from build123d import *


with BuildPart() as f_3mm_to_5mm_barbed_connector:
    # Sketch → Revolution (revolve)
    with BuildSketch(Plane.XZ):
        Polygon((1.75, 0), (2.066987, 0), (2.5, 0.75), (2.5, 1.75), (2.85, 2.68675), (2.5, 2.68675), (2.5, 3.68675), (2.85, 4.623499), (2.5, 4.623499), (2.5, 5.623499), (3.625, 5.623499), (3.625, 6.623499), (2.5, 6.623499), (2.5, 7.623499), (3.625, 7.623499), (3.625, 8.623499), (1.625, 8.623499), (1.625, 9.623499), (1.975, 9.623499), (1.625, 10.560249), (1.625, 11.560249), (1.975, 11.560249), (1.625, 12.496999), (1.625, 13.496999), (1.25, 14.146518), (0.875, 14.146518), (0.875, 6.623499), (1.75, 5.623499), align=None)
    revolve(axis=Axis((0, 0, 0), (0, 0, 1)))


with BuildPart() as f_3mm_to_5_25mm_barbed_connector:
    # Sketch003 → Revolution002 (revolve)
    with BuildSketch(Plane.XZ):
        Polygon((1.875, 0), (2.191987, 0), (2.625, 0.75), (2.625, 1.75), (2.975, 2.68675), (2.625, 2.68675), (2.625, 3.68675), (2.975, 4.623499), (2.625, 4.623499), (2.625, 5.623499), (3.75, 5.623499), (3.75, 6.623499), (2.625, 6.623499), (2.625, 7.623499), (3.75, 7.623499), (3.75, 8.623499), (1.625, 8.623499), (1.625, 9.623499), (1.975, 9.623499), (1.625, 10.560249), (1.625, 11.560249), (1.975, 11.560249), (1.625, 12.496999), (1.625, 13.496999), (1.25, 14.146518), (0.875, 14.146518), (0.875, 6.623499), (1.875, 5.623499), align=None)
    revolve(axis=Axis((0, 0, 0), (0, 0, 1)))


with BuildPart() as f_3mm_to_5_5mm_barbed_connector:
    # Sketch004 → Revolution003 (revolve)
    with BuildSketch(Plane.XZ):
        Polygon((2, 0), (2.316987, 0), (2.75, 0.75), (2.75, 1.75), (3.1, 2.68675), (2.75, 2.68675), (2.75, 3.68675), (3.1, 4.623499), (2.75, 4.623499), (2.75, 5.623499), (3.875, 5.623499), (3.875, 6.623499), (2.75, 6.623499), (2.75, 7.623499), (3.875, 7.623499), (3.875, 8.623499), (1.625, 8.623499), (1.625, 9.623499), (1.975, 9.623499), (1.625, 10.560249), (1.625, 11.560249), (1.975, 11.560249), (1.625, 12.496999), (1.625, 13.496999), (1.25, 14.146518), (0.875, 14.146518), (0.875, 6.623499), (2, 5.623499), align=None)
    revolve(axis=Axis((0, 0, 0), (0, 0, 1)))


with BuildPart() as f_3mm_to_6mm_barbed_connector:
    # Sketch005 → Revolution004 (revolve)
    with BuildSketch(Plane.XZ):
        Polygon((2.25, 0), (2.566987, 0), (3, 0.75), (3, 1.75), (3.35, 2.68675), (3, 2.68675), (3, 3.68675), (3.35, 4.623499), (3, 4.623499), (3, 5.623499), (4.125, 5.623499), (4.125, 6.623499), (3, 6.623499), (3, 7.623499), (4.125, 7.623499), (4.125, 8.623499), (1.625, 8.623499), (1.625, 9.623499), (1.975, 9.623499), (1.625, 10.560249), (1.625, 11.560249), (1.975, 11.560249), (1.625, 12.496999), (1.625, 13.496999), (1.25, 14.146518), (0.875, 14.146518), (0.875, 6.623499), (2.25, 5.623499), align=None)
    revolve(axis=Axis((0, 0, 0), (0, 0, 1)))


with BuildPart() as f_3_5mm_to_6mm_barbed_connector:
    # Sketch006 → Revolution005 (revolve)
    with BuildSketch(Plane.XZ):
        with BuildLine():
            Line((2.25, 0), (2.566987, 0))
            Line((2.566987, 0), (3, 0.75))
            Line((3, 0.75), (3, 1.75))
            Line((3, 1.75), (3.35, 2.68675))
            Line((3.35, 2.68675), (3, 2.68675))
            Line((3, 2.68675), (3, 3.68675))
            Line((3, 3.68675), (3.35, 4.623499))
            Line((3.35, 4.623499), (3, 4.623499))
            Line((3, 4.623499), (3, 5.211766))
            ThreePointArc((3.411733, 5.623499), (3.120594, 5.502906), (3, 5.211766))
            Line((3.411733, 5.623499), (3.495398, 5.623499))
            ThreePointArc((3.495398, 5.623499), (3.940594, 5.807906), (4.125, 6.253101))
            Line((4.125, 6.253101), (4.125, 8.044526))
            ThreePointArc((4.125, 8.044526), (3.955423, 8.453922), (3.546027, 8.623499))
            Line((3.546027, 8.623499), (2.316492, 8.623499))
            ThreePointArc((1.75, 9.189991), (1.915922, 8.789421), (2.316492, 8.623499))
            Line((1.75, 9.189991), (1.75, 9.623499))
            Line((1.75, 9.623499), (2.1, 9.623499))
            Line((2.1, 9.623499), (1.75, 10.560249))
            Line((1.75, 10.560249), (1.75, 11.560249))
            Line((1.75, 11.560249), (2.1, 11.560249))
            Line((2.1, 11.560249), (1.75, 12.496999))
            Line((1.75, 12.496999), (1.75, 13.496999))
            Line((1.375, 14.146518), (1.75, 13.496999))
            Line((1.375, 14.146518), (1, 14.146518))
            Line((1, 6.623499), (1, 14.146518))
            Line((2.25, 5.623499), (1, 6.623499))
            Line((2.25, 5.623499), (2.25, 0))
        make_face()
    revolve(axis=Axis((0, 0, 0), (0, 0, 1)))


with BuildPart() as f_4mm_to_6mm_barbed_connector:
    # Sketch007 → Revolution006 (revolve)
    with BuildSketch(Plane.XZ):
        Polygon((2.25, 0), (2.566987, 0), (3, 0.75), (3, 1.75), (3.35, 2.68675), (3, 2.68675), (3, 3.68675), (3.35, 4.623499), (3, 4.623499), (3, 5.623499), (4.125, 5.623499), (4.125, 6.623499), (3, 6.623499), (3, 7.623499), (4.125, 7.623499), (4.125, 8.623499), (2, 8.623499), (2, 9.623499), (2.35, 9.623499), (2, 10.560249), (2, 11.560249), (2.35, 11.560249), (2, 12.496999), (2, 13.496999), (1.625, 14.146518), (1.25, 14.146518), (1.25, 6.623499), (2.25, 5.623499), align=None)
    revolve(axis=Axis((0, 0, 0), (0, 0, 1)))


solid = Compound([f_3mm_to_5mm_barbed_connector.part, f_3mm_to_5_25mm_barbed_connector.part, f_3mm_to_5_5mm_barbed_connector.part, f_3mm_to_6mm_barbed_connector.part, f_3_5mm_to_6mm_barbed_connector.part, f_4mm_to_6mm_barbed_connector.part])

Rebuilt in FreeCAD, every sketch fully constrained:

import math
import FreeCAD as App
import Part
import Sketcher
Q = App.Units.Quantity

doc = App.newDocument("Part")
body = doc.addObject("PartDesign::Body", "Body")

sketch1 = doc.addObject("Sketcher::SketchObject", "Sketch")
body.addObject(sketch1)
sketch1.AttachmentSupport = (doc.XZ_Plane, [""])
sketch1.MapMode = "FlatFace"
sketch1.addGeometry([
    Part.LineSegment(App.Vector(1.75, 0, 0), App.Vector(2.07, 0, 0)),
    Part.LineSegment(App.Vector(2.07, 0, 0), App.Vector(2.5, 0.75, 0)),
    Part.LineSegment(App.Vector(2.5, 0.75, 0), App.Vector(2.5, 1.75, 0)),
    Part.LineSegment(App.Vector(2.5, 1.75, 0), App.Vector(2.85, 2.69, 0)),
    Part.LineSegment(App.Vector(2.85, 2.69, 0), App.Vector(2.5, 2.69, 0)),
    Part.LineSegment(App.Vector(2.5, 2.69, 0), App.Vector(2.5, 3.69, 0)),
    Part.LineSegment(App.Vector(2.5, 3.69, 0), App.Vector(2.85, 4.62, 0)),
    Part.LineSegment(App.Vector(2.85, 4.62, 0), App.Vector(2.5, 4.62, 0)),
    Part.LineSegment(App.Vector(2.5, 4.62, 0), App.Vector(2.5, 5.62, 0)),
    Part.LineSegment(App.Vector(2.5, 5.62, 0), App.Vector(3.62, 5.62, 0)),
    Part.LineSegment(App.Vector(3.62, 5.62, 0), App.Vector(3.62, 6.62, 0)),
    Part.LineSegment(App.Vector(3.62, 6.62, 0), App.Vector(2.5, 6.62, 0)),
    Part.LineSegment(App.Vector(2.5, 6.62, 0), App.Vector(2.5, 7.62, 0)),
    Part.LineSegment(App.Vector(2.5, 7.62, 0), App.Vector(3.62, 7.62, 0)),
    Part.LineSegment(App.Vector(3.62, 7.62, 0), App.Vector(3.62, 8.62, 0)),
    Part.LineSegment(App.Vector(3.62, 8.62, 0), App.Vector(1.62, 8.62, 0)),
    Part.LineSegment(App.Vector(1.62, 8.62, 0), App.Vector(1.62, 9.62, 0)),
    Part.LineSegment(App.Vector(1.62, 9.62, 0), App.Vector(1.98, 9.62, 0)),
    Part.LineSegment(App.Vector(1.98, 9.62, 0), App.Vector(1.62, 10.56, 0)),
    Part.LineSegment(App.Vector(1.62, 10.56, 0), App.Vector(1.62, 11.56, 0)),
    Part.LineSegment(App.Vector(1.62, 11.56, 0), App.Vector(1.98, 11.56, 0)),
    Part.LineSegment(App.Vector(1.98, 11.56, 0), App.Vector(1.62, 12.5, 0)),
    Part.LineSegment(App.Vector(1.62, 12.5, 0), App.Vector(1.62, 13.5, 0)),
    Part.LineSegment(App.Vector(1.62, 13.5, 0), App.Vector(1.25, 14.15, 0)),
    Part.LineSegment(App.Vector(1.25, 14.15, 0), App.Vector(0.88, 14.15, 0)),
    Part.LineSegment(App.Vector(0.88, 14.15, 0), App.Vector(0.88, 6.62, 0)),
    Part.LineSegment(App.Vector(0.88, 6.62, 0), App.Vector(1.75, 5.62, 0)),
    Part.LineSegment(App.Vector(1.75, 5.62, 0), App.Vector(1.75, 0, 0)),
], False)
sketch1.addConstraint([
    Sketcher.Constraint("Coincident", 0, 2, 1, 1),
    Sketcher.Constraint("Coincident", 1, 2, 2, 1),
    Sketcher.Constraint("Coincident", 2, 2, 3, 1),
    Sketcher.Constraint("Coincident", 3, 2, 4, 1),
    Sketcher.Constraint("Coincident", 4, 2, 5, 1),
    Sketcher.Constraint("Coincident", 5, 2, 6, 1),
    Sketcher.Constraint("Coincident", 6, 2, 7, 1),
    Sketcher.Constraint("Coincident", 7, 2, 8, 1),
    Sketcher.Constraint("Coincident", 8, 2, 9, 1),
    Sketcher.Constraint("Coincident", 9, 2, 10, 1),
    Sketcher.Constraint("Coincident", 10, 2, 11, 1),
    Sketcher.Constraint("Coincident", 11, 2, 12, 1),
    Sketcher.Constraint("Coincident", 12, 2, 13, 1),
    Sketcher.Constraint("Coincident", 13, 2, 14, 1),
    Sketcher.Constraint("Coincident", 14, 2, 15, 1),
    Sketcher.Constraint("Coincident", 15, 2, 16, 1),
    Sketcher.Constraint("Coincident", 16, 2, 17, 1),
    Sketcher.Constraint("Coincident", 17, 2, 18, 1),
    Sketcher.Constraint("Coincident", 18, 2, 19, 1),
    Sketcher.Constraint("Coincident", 19, 2, 20, 1),
    Sketcher.Constraint("Coincident", 20, 2, 21, 1),
    Sketcher.Constraint("Coincident", 21, 2, 22, 1),
    Sketcher.Constraint("Coincident", 22, 2, 23, 1),
    Sketcher.Constraint("Coincident", 23, 2, 24, 1),
    Sketcher.Constraint("Coincident", 24, 2, 25, 1),
    Sketcher.Constraint("Coincident", 25, 2, 26, 1),
    Sketcher.Constraint("Coincident", 26, 2, 27, 1),
    Sketcher.Constraint("Coincident", 27, 2, 0, 1),
    Sketcher.Constraint("Horizontal", 0),
    Sketcher.Constraint("Vertical", 2),
    Sketcher.Constraint("Horizontal", 4),
    Sketcher.Constraint("Vertical", 5),
    Sketcher.Constraint("Horizontal", 7),
    Sketcher.Constraint("Vertical", 8),
    Sketcher.Constraint("Horizontal", 9),
    Sketcher.Constraint("Vertical", 10),
    Sketcher.Constraint("Horizontal", 11),
    Sketcher.Constraint("Vertical", 12),
    Sketcher.Constraint("Horizontal", 13),
    Sketcher.Constraint("Vertical", 14),
    Sketcher.Constraint("Horizontal", 15),
    Sketcher.Constraint("Vertical", 16),
    Sketcher.Constraint("Horizontal", 17),
    Sketcher.Constraint("Vertical", 19),
    Sketcher.Constraint("Horizontal", 20),
    Sketcher.Constraint("Vertical", 22),
    Sketcher.Constraint("Horizontal", 24),
    Sketcher.Constraint("Vertical", 25),
    Sketcher.Constraint("Vertical", 27),
    Sketcher.Constraint("PointOnObject", 0, 2, -1),
    Sketcher.Constraint("Parallel", 3, 6),
    Sketcher.Constraint("Parallel", 18, 21),
    Sketcher.Constraint("Horizontal", 11, 2, 25, 2),
    Sketcher.Constraint("Horizontal", 9, 2, 26, 2),
    Sketcher.Constraint("Vertical", 2, 2, 4, 2),
    Sketcher.Constraint("Vertical", 3, 2, 6, 2),
    Sketcher.Constraint("Vertical", 5, 2, 7, 2),
    Sketcher.Constraint("Vertical", 8, 2, 11, 2),
    Sketcher.Constraint("Vertical", 10, 2, 13, 2),
    Sketcher.Constraint("Vertical", 16, 2, 18, 2),
    Sketcher.Constraint("Vertical", 17, 2, 20, 2),
    Sketcher.Constraint("Vertical", 19, 2, 21, 2),
    Sketcher.Constraint("Equal", 7, 17),
    Sketcher.Constraint("Equal", 2, 5),
    Sketcher.Constraint("Equal", 5, 8),
    Sketcher.Constraint("Equal", 8, 10),
    Sketcher.Constraint("Equal", 10, 12),
    Sketcher.Constraint("Equal", 12, 14),
    Sketcher.Constraint("Equal", 14, 16),
    Sketcher.Constraint("Equal", 16, 19),
    Sketcher.Constraint("Equal", 19, 22),
    Sketcher.Constraint("Equal", 6, 18),
    Sketcher.Constraint("DistanceX", 15, 2, 15, 1, Q("2 mm")),
    Sketcher.Constraint("DistanceY", 2, 1, 2, 2, Q("1 mm")),
    Sketcher.Constraint("Angle", 1, Q("59.999983 deg")),
    Sketcher.Constraint("Angle", 23, Q("120.000002 deg")),
    Sketcher.Constraint("Distance", 3, Q("1 mm")),
    Sketcher.Constraint("DistanceX", 4, 2, 4, 1, Q("0.35 mm")),
    Sketcher.Constraint("DistanceX", -1, 1, 1, 2, Q("2.5 mm")),
    Sketcher.Constraint("DistanceX", 24, 2, 20, 2, Q("1.1 mm")),
    Sketcher.Constraint("DistanceX", 26, 2, 6, 2, Q("1.1 mm")),
    Sketcher.Constraint("Distance", 23, Q("0.75 mm")),
    Sketcher.Constraint("DistanceX", 9, 1, 9, 2, Q("1.125 mm")),
    Sketcher.Constraint("DistanceY", -1, 1, 1, 2, Q("0.75 mm")),
])
revolution = doc.addObject("PartDesign::Revolution", "Revolution")
body.addObject(revolution)
revolution.Profile = sketch1
revolution.ReferenceAxis = (sketch1, ["V_Axis"])
revolution.Angle = 360
body2 = doc.addObject("PartDesign::Body", "Body001")

sketch2 = doc.addObject("Sketcher::SketchObject", "Sketch001")
body2.addObject(sketch2)
sketch2.AttachmentSupport = (doc.getObject("XZ_Plane001"), [""])
sketch2.MapMode = "FlatFace"
sketch2.addGeometry([
    Part.LineSegment(App.Vector(1.88, 0, 0), App.Vector(2.19, 0, 0)),
    Part.LineSegment(App.Vector(2.19, 0, 0), App.Vector(2.62, 0.75, 0)),
    Part.LineSegment(App.Vector(2.62, 0.75, 0), App.Vector(2.62, 1.75, 0)),
    Part.LineSegment(App.Vector(2.62, 1.75, 0), App.Vector(2.98, 2.69, 0)),
    Part.LineSegment(App.Vector(2.98, 2.69, 0), App.Vector(2.62, 2.69, 0)),
    Part.LineSegment(App.Vector(2.62, 2.69, 0), App.Vector(2.62, 3.69, 0)),
    Part.LineSegment(App.Vector(2.62, 3.69, 0), App.Vector(2.98, 4.62, 0)),
    Part.LineSegment(App.Vector(2.98, 4.62, 0), App.Vector(2.62, 4.62, 0)),
    Part.LineSegment(App.Vector(2.62, 4.62, 0), App.Vector(2.62, 5.62, 0)),
    Part.LineSegment(App.Vector(2.62, 5.62, 0), App.Vector(3.75, 5.62, 0)),
    Part.LineSegment(App.Vector(3.75, 5.62, 0), App.Vector(3.75, 6.62, 0)),
    Part.LineSegment(App.Vector(3.75, 6.62, 0), App.Vector(2.62, 6.62, 0)),
    Part.LineSegment(App.Vector(2.62, 6.62, 0), App.Vector(2.62, 7.62, 0)),
    Part.LineSegment(App.Vector(2.62, 7.62, 0), App.Vector(3.75, 7.62, 0)),
    Part.LineSegment(App.Vector(3.75, 7.62, 0), App.Vector(3.75, 8.62, 0)),
    Part.LineSegment(App.Vector(3.75, 8.62, 0), App.Vector(1.62, 8.62, 0)),
    Part.LineSegment(App.Vector(1.62, 8.62, 0), App.Vector(1.62, 9.62, 0)),
    Part.LineSegment(App.Vector(1.62, 9.62, 0), App.Vector(1.98, 9.62, 0)),
    Part.LineSegment(App.Vector(1.98, 9.62, 0), App.Vector(1.62, 10.56, 0)),
    Part.LineSegment(App.Vector(1.62, 10.56, 0), App.Vector(1.62, 11.56, 0)),
    Part.LineSegment(App.Vector(1.62, 11.56, 0), App.Vector(1.98, 11.56, 0)),
    Part.LineSegment(App.Vector(1.98, 11.56, 0), App.Vector(1.62, 12.5, 0)),
    Part.LineSegment(App.Vector(1.62, 12.5, 0), App.Vector(1.62, 13.5, 0)),
    Part.LineSegment(App.Vector(1.62, 13.5, 0), App.Vector(1.25, 14.15, 0)),
    Part.LineSegment(App.Vector(1.25, 14.15, 0), App.Vector(0.88, 14.15, 0)),
    Part.LineSegment(App.Vector(0.88, 14.15, 0), App.Vector(0.88, 6.62, 0)),
    Part.LineSegment(App.Vector(0.88, 6.62, 0), App.Vector(1.88, 5.62, 0)),
    Part.LineSegment(App.Vector(1.88, 5.62, 0), App.Vector(1.88, 0, 0)),
], False)
sketch2.addConstraint([
    Sketcher.Constraint("Coincident", 0, 2, 1, 1),
    Sketcher.Constraint("Coincident", 1, 2, 2, 1),
    Sketcher.Constraint("Coincident", 2, 2, 3, 1),
    Sketcher.Constraint("Coincident", 3, 2, 4, 1),
    Sketcher.Constraint("Coincident", 4, 2, 5, 1),
    Sketcher.Constraint("Coincident", 5, 2, 6, 1),
    Sketcher.Constraint("Coincident", 6, 2, 7, 1),
    Sketcher.Constraint("Coincident", 7, 2, 8, 1),
    Sketcher.Constraint("Coincident", 8, 2, 9, 1),
    Sketcher.Constraint("Coincident", 9, 2, 10, 1),
    Sketcher.Constraint("Coincident", 10, 2, 11, 1),
    Sketcher.Constraint("Coincident", 11, 2, 12, 1),
    Sketcher.Constraint("Coincident", 12, 2, 13, 1),
    Sketcher.Constraint("Coincident", 13, 2, 14, 1),
    Sketcher.Constraint("Coincident", 14, 2, 15, 1),
    Sketcher.Constraint("Coincident", 15, 2, 16, 1),
    Sketcher.Constraint("Coincident", 16, 2, 17, 1),
    Sketcher.Constraint("Coincident", 17, 2, 18, 1),
    Sketcher.Constraint("Coincident", 18, 2, 19, 1),
    Sketcher.Constraint("Coincident", 19, 2, 20, 1),
    Sketcher.Constraint("Coincident", 20, 2, 21, 1),
    Sketcher.Constraint("Coincident", 21, 2, 22, 1),
    Sketcher.Constraint("Coincident", 22, 2, 23, 1),
    Sketcher.Constraint("Coincident", 23, 2, 24, 1),
    Sketcher.Constraint("Coincident", 24, 2, 25, 1),
    Sketcher.Constraint("Coincident", 25, 2, 26, 1),
    Sketcher.Constraint("Coincident", 26, 2, 27, 1),
    Sketcher.Constraint("Coincident", 27, 2, 0, 1),
    Sketcher.Constraint("Horizontal", 0),
    Sketcher.Constraint("Vertical", 2),
    Sketcher.Constraint("Horizontal", 4),
    Sketcher.Constraint("Vertical", 5),
    Sketcher.Constraint("Horizontal", 7),
    Sketcher.Constraint("Vertical", 8),
    Sketcher.Constraint("Horizontal", 9),
    Sketcher.Constraint("Vertical", 10),
    Sketcher.Constraint("Horizontal", 11),
    Sketcher.Constraint("Vertical", 12),
    Sketcher.Constraint("Horizontal", 13),
    Sketcher.Constraint("Vertical", 14),
    Sketcher.Constraint("Horizontal", 15),
    Sketcher.Constraint("Vertical", 16),
    Sketcher.Constraint("Horizontal", 17),
    Sketcher.Constraint("Vertical", 19),
    Sketcher.Constraint("Horizontal", 20),
    Sketcher.Constraint("Vertical", 22),
    Sketcher.Constraint("Horizontal", 24),
    Sketcher.Constraint("Vertical", 25),
    Sketcher.Constraint("Vertical", 27),
    Sketcher.Constraint("PointOnObject", 0, 2, -1),
    Sketcher.Constraint("Parallel", 3, 6),
    Sketcher.Constraint("Parallel", 18, 21),
    Sketcher.Constraint("Horizontal", 11, 2, 25, 2),
    Sketcher.Constraint("Horizontal", 9, 2, 26, 2),
    Sketcher.Constraint("Vertical", 2, 2, 4, 2),
    Sketcher.Constraint("Vertical", 3, 2, 6, 2),
    Sketcher.Constraint("Vertical", 5, 2, 7, 2),
    Sketcher.Constraint("Vertical", 8, 2, 11, 2),
    Sketcher.Constraint("Vertical", 10, 2, 13, 2),
    Sketcher.Constraint("Vertical", 16, 2, 18, 2),
    Sketcher.Constraint("Vertical", 17, 2, 20, 2),
    Sketcher.Constraint("Vertical", 19, 2, 21, 2),
    Sketcher.Constraint("Equal", 7, 17),
    Sketcher.Constraint("Equal", 2, 5),
    Sketcher.Constraint("Equal", 5, 8),
    Sketcher.Constraint("Equal", 8, 10),
    Sketcher.Constraint("Equal", 10, 12),
    Sketcher.Constraint("Equal", 12, 14),
    Sketcher.Constraint("Equal", 14, 16),
    Sketcher.Constraint("Equal", 16, 19),
    Sketcher.Constraint("Equal", 19, 22),
    Sketcher.Constraint("Equal", 6, 18),
    Sketcher.Constraint("DistanceY", 2, 1, 2, 2, Q("1 mm")),
    Sketcher.Constraint("Angle", 1, Q("59.999983 deg")),
    Sketcher.Constraint("Angle", 23, Q("120.000002 deg")),
    Sketcher.Constraint("Angle", 26, Q("-45 deg")),
    Sketcher.Constraint("Distance", 3, Q("1 mm")),
    Sketcher.Constraint("DistanceX", 15, 2, 12, 2, Q("1 mm")),
    Sketcher.Constraint("DistanceX", 4, 2, 4, 1, Q("0.35 mm")),
    Sketcher.Constraint("DistanceX", 24, 2, 20, 2, Q("1.1 mm")),
    Sketcher.Constraint("Distance", 23, Q("0.75 mm")),
    Sketcher.Constraint("DistanceX", 9, 1, 9, 2, Q("1.125 mm")),
    Sketcher.Constraint("DistanceY", -1, 1, 1, 2, Q("0.75 mm")),
    Sketcher.Constraint("DistanceX", -1, 1, 9, 2, Q("3.75 mm")),
])
revolution2 = doc.addObject("PartDesign::Revolution", "Revolution001")
body2.addObject(revolution2)
revolution2.Profile = sketch2
revolution2.ReferenceAxis = (sketch2, ["V_Axis"])
revolution2.Angle = 360
body3 = doc.addObject("PartDesign::Body", "Body002")

sketch3 = doc.addObject("Sketcher::SketchObject", "Sketch002")
body3.addObject(sketch3)
sketch3.AttachmentSupport = (doc.getObject("XZ_Plane002"), [""])
sketch3.MapMode = "FlatFace"
sketch3.addGeometry([
    Part.LineSegment(App.Vector(2, 0, 0), App.Vector(2.32, 0, 0)),
    Part.LineSegment(App.Vector(2.32, 0, 0), App.Vector(2.75, 0.75, 0)),
    Part.LineSegment(App.Vector(2.75, 0.75, 0), App.Vector(2.75, 1.75, 0)),
    Part.LineSegment(App.Vector(2.75, 1.75, 0), App.Vector(3.1, 2.69, 0)),
    Part.LineSegment(App.Vector(3.1, 2.69, 0), App.Vector(2.75, 2.69, 0)),
    Part.LineSegment(App.Vector(2.75, 2.69, 0), App.Vector(2.75, 3.69, 0)),
    Part.LineSegment(App.Vector(2.75, 3.69, 0), App.Vector(3.1, 4.62, 0)),
    Part.LineSegment(App.Vector(3.1, 4.62, 0), App.Vector(2.75, 4.62, 0)),
    Part.LineSegment(App.Vector(2.75, 4.62, 0), App.Vector(2.75, 5.62, 0)),
    Part.LineSegment(App.Vector(2.75, 5.62, 0), App.Vector(3.88, 5.62, 0)),
    Part.LineSegment(App.Vector(3.88, 5.62, 0), App.Vector(3.88, 6.62, 0)),
    Part.LineSegment(App.Vector(3.88, 6.62, 0), App.Vector(2.75, 6.62, 0)),
    Part.LineSegment(App.Vector(2.75, 6.62, 0), App.Vector(2.75, 7.62, 0)),
    Part.LineSegment(App.Vector(2.75, 7.62, 0), App.Vector(3.88, 7.62, 0)),
    Part.LineSegment(App.Vector(3.88, 7.62, 0), App.Vector(3.88, 8.62, 0)),
    Part.LineSegment(App.Vector(3.88, 8.62, 0), App.Vector(1.62, 8.62, 0)),
    Part.LineSegment(App.Vector(1.62, 8.62, 0), App.Vector(1.62, 9.62, 0)),
    Part.LineSegment(App.Vector(1.62, 9.62, 0), App.Vector(1.98, 9.62, 0)),
    Part.LineSegment(App.Vector(1.98, 9.62, 0), App.Vector(1.62, 10.56, 0)),
    Part.LineSegment(App.Vector(1.62, 10.56, 0), App.Vector(1.62, 11.56, 0)),
    Part.LineSegment(App.Vector(1.62, 11.56, 0), App.Vector(1.98, 11.56, 0)),
    Part.LineSegment(App.Vector(1.98, 11.56, 0), App.Vector(1.62, 12.5, 0)),
    Part.LineSegment(App.Vector(1.62, 12.5, 0), App.Vector(1.62, 13.5, 0)),
    Part.LineSegment(App.Vector(1.62, 13.5, 0), App.Vector(1.25, 14.15, 0)),
    Part.LineSegment(App.Vector(1.25, 14.15, 0), App.Vector(0.88, 14.15, 0)),
    Part.LineSegment(App.Vector(0.88, 14.15, 0), App.Vector(0.88, 6.62, 0)),
    Part.LineSegment(App.Vector(0.88, 6.62, 0), App.Vector(2, 5.62, 0)),
    Part.LineSegment(App.Vector(2, 5.62, 0), App.Vector(2, 0, 0)),
], False)
sketch3.addConstraint([
    Sketcher.Constraint("Coincident", 0, 2, 1, 1),
    Sketcher.Constraint("Coincident", 1, 2, 2, 1),
    Sketcher.Constraint("Coincident", 2, 2, 3, 1),
    Sketcher.Constraint("Coincident", 3, 2, 4, 1),
    Sketcher.Constraint("Coincident", 4, 2, 5, 1),
    Sketcher.Constraint("Coincident", 5, 2, 6, 1),
    Sketcher.Constraint("Coincident", 6, 2, 7, 1),
    Sketcher.Constraint("Coincident", 7, 2, 8, 1),
    Sketcher.Constraint("Coincident", 8, 2, 9, 1),
    Sketcher.Constraint("Coincident", 9, 2, 10, 1),
    Sketcher.Constraint("Coincident", 10, 2, 11, 1),
    Sketcher.Constraint("Coincident", 11, 2, 12, 1),
    Sketcher.Constraint("Coincident", 12, 2, 13, 1),
    Sketcher.Constraint("Coincident", 13, 2, 14, 1),
    Sketcher.Constraint("Coincident", 14, 2, 15, 1),
    Sketcher.Constraint("Coincident", 15, 2, 16, 1),
    Sketcher.Constraint("Coincident", 16, 2, 17, 1),
    Sketcher.Constraint("Coincident", 17, 2, 18, 1),
    Sketcher.Constraint("Coincident", 18, 2, 19, 1),
    Sketcher.Constraint("Coincident", 19, 2, 20, 1),
    Sketcher.Constraint("Coincident", 20, 2, 21, 1),
    Sketcher.Constraint("Coincident", 21, 2, 22, 1),
    Sketcher.Constraint("Coincident", 22, 2, 23, 1),
    Sketcher.Constraint("Coincident", 23, 2, 24, 1),
    Sketcher.Constraint("Coincident", 24, 2, 25, 1),
    Sketcher.Constraint("Coincident", 25, 2, 26, 1),
    Sketcher.Constraint("Coincident", 26, 2, 27, 1),
    Sketcher.Constraint("Coincident", 27, 2, 0, 1),
    Sketcher.Constraint("Horizontal", 0),
    Sketcher.Constraint("Vertical", 2),
    Sketcher.Constraint("Horizontal", 4),
    Sketcher.Constraint("Vertical", 5),
    Sketcher.Constraint("Horizontal", 7),
    Sketcher.Constraint("Vertical", 8),
    Sketcher.Constraint("Horizontal", 9),
    Sketcher.Constraint("Vertical", 10),
    Sketcher.Constraint("Horizontal", 11),
    Sketcher.Constraint("Vertical", 12),
    Sketcher.Constraint("Horizontal", 13),
    Sketcher.Constraint("Vertical", 14),
    Sketcher.Constraint("Horizontal", 15),
    Sketcher.Constraint("Vertical", 16),
    Sketcher.Constraint("Horizontal", 17),
    Sketcher.Constraint("Vertical", 19),
    Sketcher.Constraint("Horizontal", 20),
    Sketcher.Constraint("Vertical", 22),
    Sketcher.Constraint("Horizontal", 24),
    Sketcher.Constraint("Vertical", 25),
    Sketcher.Constraint("Vertical", 27),
    Sketcher.Constraint("PointOnObject", 0, 2, -1),
    Sketcher.Constraint("Parallel", 3, 6),
    Sketcher.Constraint("Parallel", 18, 21),
    Sketcher.Constraint("Horizontal", 11, 2, 25, 2),
    Sketcher.Constraint("Horizontal", 9, 2, 26, 2),
    Sketcher.Constraint("Vertical", 2, 2, 4, 2),
    Sketcher.Constraint("Vertical", 3, 2, 6, 2),
    Sketcher.Constraint("Vertical", 5, 2, 7, 2),
    Sketcher.Constraint("Vertical", 8, 2, 11, 2),
    Sketcher.Constraint("Vertical", 10, 2, 13, 2),
    Sketcher.Constraint("Vertical", 16, 2, 18, 2),
    Sketcher.Constraint("Vertical", 17, 2, 20, 2),
    Sketcher.Constraint("Vertical", 19, 2, 21, 2),
    Sketcher.Constraint("Equal", 7, 17),
    Sketcher.Constraint("Equal", 2, 5),
    Sketcher.Constraint("Equal", 5, 8),
    Sketcher.Constraint("Equal", 8, 10),
    Sketcher.Constraint("Equal", 10, 12),
    Sketcher.Constraint("Equal", 12, 14),
    Sketcher.Constraint("Equal", 14, 16),
    Sketcher.Constraint("Equal", 16, 19),
    Sketcher.Constraint("Equal", 19, 22),
    Sketcher.Constraint("Equal", 6, 18),
    Sketcher.Constraint("DistanceY", 2, 1, 2, 2, Q("1 mm")),
    Sketcher.Constraint("Angle", 1, Q("59.999983 deg")),
    Sketcher.Constraint("Angle", 23, Q("120.000002 deg")),
    Sketcher.Constraint("Distance", 3, Q("1 mm")),
    Sketcher.Constraint("DistanceX", -1, 1, 26, 2, Q("2 mm")),
    Sketcher.Constraint("DistanceX", 4, 2, 4, 1, Q("0.35 mm")),
    Sketcher.Constraint("DistanceX", 15, 2, 15, 1, Q("2.25 mm")),
    Sketcher.Constraint("DistanceX", -1, 1, 3, 2, Q("3.1 mm")),
    Sketcher.Constraint("DistanceX", 24, 2, 20, 2, Q("1.1 mm")),
    Sketcher.Constraint("Distance", 23, Q("0.75 mm")),
    Sketcher.Constraint("DistanceX", 9, 1, 9, 2, Q("1.125 mm")),
    Sketcher.Constraint("DistanceY", -1, 1, 1, 2, Q("0.75 mm")),
])
revolution3 = doc.addObject("PartDesign::Revolution", "Revolution002")
body3.addObject(revolution3)
revolution3.Profile = sketch3
revolution3.ReferenceAxis = (sketch3, ["V_Axis"])
revolution3.Angle = 360
body4 = doc.addObject("PartDesign::Body", "Body003")

sketch4 = doc.addObject("Sketcher::SketchObject", "Sketch003")
body4.addObject(sketch4)
sketch4.AttachmentSupport = (doc.getObject("XZ_Plane003"), [""])
sketch4.MapMode = "FlatFace"
sketch4.addGeometry([
    Part.LineSegment(App.Vector(2.25, 0, 0), App.Vector(2.57, 0, 0)),
    Part.LineSegment(App.Vector(2.57, 0, 0), App.Vector(3, 0.75, 0)),
    Part.LineSegment(App.Vector(3, 0.75, 0), App.Vector(3, 1.75, 0)),
    Part.LineSegment(App.Vector(3, 1.75, 0), App.Vector(3.35, 2.69, 0)),
    Part.LineSegment(App.Vector(3.35, 2.69, 0), App.Vector(3, 2.69, 0)),
    Part.LineSegment(App.Vector(3, 2.69, 0), App.Vector(3, 3.69, 0)),
    Part.LineSegment(App.Vector(3, 3.69, 0), App.Vector(3.35, 4.62, 0)),
    Part.LineSegment(App.Vector(3.35, 4.62, 0), App.Vector(3, 4.62, 0)),
    Part.LineSegment(App.Vector(3, 4.62, 0), App.Vector(3, 5.62, 0)),
    Part.LineSegment(App.Vector(3, 5.62, 0), App.Vector(4.12, 5.62, 0)),
    Part.LineSegment(App.Vector(4.12, 5.62, 0), App.Vector(4.12, 6.62, 0)),
    Part.LineSegment(App.Vector(4.12, 6.62, 0), App.Vector(3, 6.62, 0)),
    Part.LineSegment(App.Vector(3, 6.62, 0), App.Vector(3, 7.62, 0)),
    Part.LineSegment(App.Vector(3, 7.62, 0), App.Vector(4.12, 7.62, 0)),
    Part.LineSegment(App.Vector(4.12, 7.62, 0), App.Vector(4.12, 8.62, 0)),
    Part.LineSegment(App.Vector(4.12, 8.62, 0), App.Vector(1.62, 8.62, 0)),
    Part.LineSegment(App.Vector(1.62, 8.62, 0), App.Vector(1.62, 9.62, 0)),
    Part.LineSegment(App.Vector(1.62, 9.62, 0), App.Vector(1.98, 9.62, 0)),
    Part.LineSegment(App.Vector(1.98, 9.62, 0), App.Vector(1.62, 10.56, 0)),
    Part.LineSegment(App.Vector(1.62, 10.56, 0), App.Vector(1.62, 11.56, 0)),
    Part.LineSegment(App.Vector(1.62, 11.56, 0), App.Vector(1.98, 11.56, 0)),
    Part.LineSegment(App.Vector(1.98, 11.56, 0), App.Vector(1.62, 12.5, 0)),
    Part.LineSegment(App.Vector(1.62, 12.5, 0), App.Vector(1.62, 13.5, 0)),
    Part.LineSegment(App.Vector(1.62, 13.5, 0), App.Vector(1.25, 14.15, 0)),
    Part.LineSegment(App.Vector(1.25, 14.15, 0), App.Vector(0.88, 14.15, 0)),
    Part.LineSegment(App.Vector(0.88, 14.15, 0), App.Vector(0.88, 6.62, 0)),
    Part.LineSegment(App.Vector(0.88, 6.62, 0), App.Vector(2.25, 5.62, 0)),
    Part.LineSegment(App.Vector(2.25, 5.62, 0), App.Vector(2.25, 0, 0)),
], False)
sketch4.addConstraint([
    Sketcher.Constraint("Coincident", 0, 2, 1, 1),
    Sketcher.Constraint("Coincident", 1, 2, 2, 1),
    Sketcher.Constraint("Coincident", 2, 2, 3, 1),
    Sketcher.Constraint("Coincident", 3, 2, 4, 1),
    Sketcher.Constraint("Coincident", 4, 2, 5, 1),
    Sketcher.Constraint("Coincident", 5, 2, 6, 1),
    Sketcher.Constraint("Coincident", 6, 2, 7, 1),
    Sketcher.Constraint("Coincident", 7, 2, 8, 1),
    Sketcher.Constraint("Coincident", 8, 2, 9, 1),
    Sketcher.Constraint("Coincident", 9, 2, 10, 1),
    Sketcher.Constraint("Coincident", 10, 2, 11, 1),
    Sketcher.Constraint("Coincident", 11, 2, 12, 1),
    Sketcher.Constraint("Coincident", 12, 2, 13, 1),
    Sketcher.Constraint("Coincident", 13, 2, 14, 1),
    Sketcher.Constraint("Coincident", 14, 2, 15, 1),
    Sketcher.Constraint("Coincident", 15, 2, 16, 1),
    Sketcher.Constraint("Coincident", 16, 2, 17, 1),
    Sketcher.Constraint("Coincident", 17, 2, 18, 1),
    Sketcher.Constraint("Coincident", 18, 2, 19, 1),
    Sketcher.Constraint("Coincident", 19, 2, 20, 1),
    Sketcher.Constraint("Coincident", 20, 2, 21, 1),
    Sketcher.Constraint("Coincident", 21, 2, 22, 1),
    Sketcher.Constraint("Coincident", 22, 2, 23, 1),
    Sketcher.Constraint("Coincident", 23, 2, 24, 1),
    Sketcher.Constraint("Coincident", 24, 2, 25, 1),
    Sketcher.Constraint("Coincident", 25, 2, 26, 1),
    Sketcher.Constraint("Coincident", 26, 2, 27, 1),
    Sketcher.Constraint("Coincident", 27, 2, 0, 1),
    Sketcher.Constraint("Horizontal", 0),
    Sketcher.Constraint("Vertical", 2),
    Sketcher.Constraint("Horizontal", 4),
    Sketcher.Constraint("Vertical", 5),
    Sketcher.Constraint("Horizontal", 7),
    Sketcher.Constraint("Vertical", 8),
    Sketcher.Constraint("Horizontal", 9),
    Sketcher.Constraint("Vertical", 10),
    Sketcher.Constraint("Horizontal", 11),
    Sketcher.Constraint("Vertical", 12),
    Sketcher.Constraint("Horizontal", 13),
    Sketcher.Constraint("Vertical", 14),
    Sketcher.Constraint("Horizontal", 15),
    Sketcher.Constraint("Vertical", 16),
    Sketcher.Constraint("Horizontal", 17),
    Sketcher.Constraint("Vertical", 19),
    Sketcher.Constraint("Horizontal", 20),
    Sketcher.Constraint("Vertical", 22),
    Sketcher.Constraint("Horizontal", 24),
    Sketcher.Constraint("Vertical", 25),
    Sketcher.Constraint("Vertical", 27),
    Sketcher.Constraint("PointOnObject", 0, 2, -1),
    Sketcher.Constraint("Parallel", 3, 6),
    Sketcher.Constraint("Parallel", 18, 21),
    Sketcher.Constraint("Horizontal", 11, 2, 25, 2),
    Sketcher.Constraint("Horizontal", 9, 2, 26, 2),
    Sketcher.Constraint("Vertical", 2, 2, 4, 2),
    Sketcher.Constraint("Vertical", 3, 2, 6, 2),
    Sketcher.Constraint("Vertical", 5, 2, 7, 2),
    Sketcher.Constraint("Vertical", 8, 2, 11, 2),
    Sketcher.Constraint("Vertical", 10, 2, 13, 2),
    Sketcher.Constraint("Vertical", 16, 2, 18, 2),
    Sketcher.Constraint("Vertical", 17, 2, 20, 2),
    Sketcher.Constraint("Vertical", 19, 2, 21, 2),
    Sketcher.Constraint("Equal", 7, 17),
    Sketcher.Constraint("Equal", 2, 5),
    Sketcher.Constraint("Equal", 5, 8),
    Sketcher.Constraint("Equal", 8, 10),
    Sketcher.Constraint("Equal", 10, 12),
    Sketcher.Constraint("Equal", 12, 14),
    Sketcher.Constraint("Equal", 14, 16),
    Sketcher.Constraint("Equal", 16, 19),
    Sketcher.Constraint("Equal", 19, 22),
    Sketcher.Constraint("Equal", 6, 18),
    Sketcher.Constraint("DistanceY", 2, 1, 2, 2, Q("1 mm")),
    Sketcher.Constraint("Angle", 1, Q("59.999983 deg")),
    Sketcher.Constraint("Angle", 23, Q("120.000002 deg")),
    Sketcher.Constraint("Distance", 3, Q("1 mm")),
    Sketcher.Constraint("DistanceX", 15, 2, 15, 1, Q("2.5 mm")),
    Sketcher.Constraint("DistanceX", -1, 1, 1, 2, Q("3 mm")),
    Sketcher.Constraint("DistanceX", 4, 2, 4, 1, Q("0.35 mm")),
    Sketcher.Constraint("DistanceX", 24, 2, 20, 2, Q("1.1 mm")),
    Sketcher.Constraint("DistanceX", 26, 2, 6, 2, Q("1.1 mm")),
    Sketcher.Constraint("Distance", 23, Q("0.75 mm")),
    Sketcher.Constraint("DistanceX", 9, 1, 9, 2, Q("1.125 mm")),
    Sketcher.Constraint("DistanceY", -1, 1, 1, 2, Q("0.75 mm")),
])
revolution4 = doc.addObject("PartDesign::Revolution", "Revolution003")
body4.addObject(revolution4)
revolution4.Profile = sketch4
revolution4.ReferenceAxis = (sketch4, ["V_Axis"])
revolution4.Angle = 360
body5 = doc.addObject("PartDesign::Body", "Body004")

sketch5 = doc.addObject("Sketcher::SketchObject", "Sketch004")
body5.addObject(sketch5)
sketch5.AttachmentSupport = (doc.getObject("XZ_Plane004"), [""])
sketch5.MapMode = "FlatFace"
sketch5.addGeometry([
    Part.LineSegment(App.Vector(2.25, 0, 0), App.Vector(2.57, 0, 0)),
    Part.LineSegment(App.Vector(2.57, 0, 0), App.Vector(3, 0.75, 0)),
    Part.LineSegment(App.Vector(3, 0.75, 0), App.Vector(3, 1.75, 0)),
    Part.LineSegment(App.Vector(3, 1.75, 0), App.Vector(3.35, 2.69, 0)),
    Part.LineSegment(App.Vector(3.35, 2.69, 0), App.Vector(3, 2.69, 0)),
    Part.LineSegment(App.Vector(3, 2.69, 0), App.Vector(3, 3.69, 0)),
    Part.LineSegment(App.Vector(3, 3.69, 0), App.Vector(3.35, 4.62, 0)),
    Part.LineSegment(App.Vector(3.35, 4.62, 0), App.Vector(3, 4.62, 0)),
    Part.LineSegment(App.Vector(3, 4.62, 0), App.Vector(3, 5.21, 0)),
    Part.ArcOfCircle(Part.Circle(App.Vector(3.41, 5.21, 0), App.Vector(0, 0, 1), 0.41), math.radians(90), math.radians(180)),
    Part.LineSegment(App.Vector(3.41, 5.62, 0), App.Vector(3.5, 5.62, 0)),
    Part.ArcOfCircle(Part.Circle(App.Vector(3.5, 6.25, 0), App.Vector(0, 0, 1), 0.63), math.radians(-90), math.radians(0)),
    Part.LineSegment(App.Vector(4.12, 6.25, 0), App.Vector(4.12, 8.04, 0)),
    Part.ArcOfCircle(Part.Circle(App.Vector(3.55, 8.04, 0), App.Vector(0, 0, 1), 0.58), math.radians(0), math.radians(90)),
    Part.LineSegment(App.Vector(3.55, 8.62, 0), App.Vector(2.32, 8.62, 0)),
    Part.ArcOfCircle(Part.Circle(App.Vector(2.32, 9.19, 0), App.Vector(0, 0, 1), 0.57), math.radians(-180), math.radians(-90)),
    Part.LineSegment(App.Vector(1.75, 9.19, 0), App.Vector(1.75, 9.62, 0)),
    Part.LineSegment(App.Vector(1.75, 9.62, 0), App.Vector(2.1, 9.62, 0)),
    Part.LineSegment(App.Vector(2.1, 9.62, 0), App.Vector(1.75, 10.56, 0)),
    Part.LineSegment(App.Vector(1.75, 10.56, 0), App.Vector(1.75, 11.56, 0)),
    Part.LineSegment(App.Vector(1.75, 11.56, 0), App.Vector(2.1, 11.56, 0)),
    Part.LineSegment(App.Vector(2.1, 11.56, 0), App.Vector(1.75, 12.5, 0)),
    Part.LineSegment(App.Vector(1.75, 12.5, 0), App.Vector(1.75, 13.5, 0)),
    Part.LineSegment(App.Vector(1.75, 13.5, 0), App.Vector(1.38, 14.15, 0)),
    Part.LineSegment(App.Vector(1.38, 14.15, 0), App.Vector(1, 14.15, 0)),
    Part.LineSegment(App.Vector(1, 14.15, 0), App.Vector(1, 6.62, 0)),
    Part.LineSegment(App.Vector(1, 6.62, 0), App.Vector(2.25, 5.62, 0)),
    Part.LineSegment(App.Vector(2.25, 5.62, 0), App.Vector(2.25, 0, 0)),
], False)
sketch5.addConstraint([
    Sketcher.Constraint("Coincident", 0, 2, 1, 1),
    Sketcher.Constraint("Coincident", 1, 2, 2, 1),
    Sketcher.Constraint("Coincident", 2, 2, 3, 1),
    Sketcher.Constraint("Coincident", 3, 2, 4, 1),
    Sketcher.Constraint("Coincident", 4, 2, 5, 1),
    Sketcher.Constraint("Coincident", 5, 2, 6, 1),
    Sketcher.Constraint("Coincident", 6, 2, 7, 1),
    Sketcher.Constraint("Coincident", 7, 2, 8, 1),
    Sketcher.Constraint("Coincident", 8, 2, 9, 2),
    Sketcher.Constraint("Coincident", 9, 1, 10, 1),
    Sketcher.Constraint("Tangent", 10, 2, 11, 1),
    Sketcher.Constraint("Tangent", 11, 2, 12, 1),
    Sketcher.Constraint("Tangent", 12, 2, 13, 1),
    Sketcher.Constraint("Tangent", 13, 2, 14, 1),
    Sketcher.Constraint("Coincident", 14, 2, 15, 2),
    Sketcher.Constraint("Coincident", 15, 1, 16, 1),
    Sketcher.Constraint("Coincident", 16, 2, 17, 1),
    Sketcher.Constraint("Coincident", 17, 2, 18, 1),
    Sketcher.Constraint("Coincident", 18, 2, 19, 1),
    Sketcher.Constraint("Coincident", 19, 2, 20, 1),
    Sketcher.Constraint("Coincident", 20, 2, 21, 1),
    Sketcher.Constraint("Coincident", 21, 2, 22, 1),
    Sketcher.Constraint("Coincident", 22, 2, 23, 1),
    Sketcher.Constraint("Coincident", 23, 2, 24, 1),
    Sketcher.Constraint("Coincident", 24, 2, 25, 1),
    Sketcher.Constraint("Coincident", 25, 2, 26, 1),
    Sketcher.Constraint("Coincident", 26, 2, 27, 1),
    Sketcher.Constraint("Coincident", 27, 2, 0, 1),
    Sketcher.Constraint("Horizontal", 0),
    Sketcher.Constraint("Vertical", 2),
    Sketcher.Constraint("Horizontal", 4),
    Sketcher.Constraint("Vertical", 5),
    Sketcher.Constraint("Horizontal", 7),
    Sketcher.Constraint("Vertical", 8),
    Sketcher.Constraint("Horizontal", 10),
    Sketcher.Constraint("Vertical", 12),
    Sketcher.Constraint("Horizontal", 14),
    Sketcher.Constraint("Vertical", 16),
    Sketcher.Constraint("Horizontal", 17),
    Sketcher.Constraint("Vertical", 19),
    Sketcher.Constraint("Horizontal", 20),
    Sketcher.Constraint("Vertical", 22),
    Sketcher.Constraint("Horizontal", 24),
    Sketcher.Constraint("Vertical", 25),
    Sketcher.Constraint("Vertical", 27),
    Sketcher.Constraint("PointOnObject", 0, 2, -1),
    Sketcher.Constraint("Parallel", 3, 6),
    Sketcher.Constraint("Parallel", 18, 21),
    Sketcher.Constraint("Horizontal", 9, 3, 8, 2),
    Sketcher.Constraint("Horizontal", 10, 2, 26, 2),
    Sketcher.Constraint("Vertical", 2, 2, 4, 2),
    Sketcher.Constraint("Vertical", 3, 2, 6, 2),
    Sketcher.Constraint("Vertical", 5, 2, 7, 2),
    Sketcher.Constraint("Vertical", 15, 3, 14, 2),
    Sketcher.Constraint("Vertical", 16, 2, 18, 2),
    Sketcher.Constraint("Vertical", 17, 2, 20, 2),
    Sketcher.Constraint("Vertical", 19, 2, 21, 2),
    Sketcher.Constraint("Equal", 7, 17),
    Sketcher.Constraint("Equal", 2, 5),
    Sketcher.Constraint("Equal", 5, 19),
    Sketcher.Constraint("Equal", 19, 22),
    Sketcher.Constraint("Equal", 6, 18),
    Sketcher.Constraint("DistanceY", 2, 1, 2, 2, Q("1 mm")),
    Sketcher.Constraint("Angle", 1, Q("59.999983 deg")),
    Sketcher.Constraint("Angle", 23, Q("120.000002 deg")),
    Sketcher.Constraint("Distance", 3, Q("1 mm")),
    Sketcher.Constraint("DistanceX", -1, 1, 1, 2, Q("3 mm")),
    Sketcher.Constraint("DistanceX", -1, 1, 24, 2, Q("1 mm")),
    Sketcher.Constraint("DistanceY", 6, 2, 9, 1, Q("1 mm")),
    Sketcher.Constraint("DistanceY", 14, 2, 16, 2, Q("1 mm")),
    Sketcher.Constraint("DistanceY", 25, 2, 14, 2, Q("2 mm")),
    Sketcher.Constraint("DistanceY", 9, 1, 25, 2, Q("1 mm")),
    Sketcher.Constraint("DistanceX", 4, 2, 4, 1, Q("0.35 mm")),
    Sketcher.Constraint("DistanceX", -1, 1, 17, 2, Q("2.1 mm")),
    Sketcher.Constraint("DistanceX", 27, 2, 3, 2, Q("1.1 mm")),
    Sketcher.Constraint("Distance", 23, Q("0.75 mm")),
    Sketcher.Constraint("DistanceY", -1, 1, 1, 2, Q("0.75 mm")),
    Sketcher.Constraint("Radius", 9, Q("0.411732 mm")),
    Sketcher.Constraint("DistanceX", -1, 1, 11, 2, Q("4.125 mm")),
    Sketcher.Constraint("Radius", 11, Q("0.629603 mm")),
    Sketcher.Constraint("Radius", 13, Q("0.578972 mm")),
    Sketcher.Constraint("Radius", 15, Q("0.566493 mm")),
    Sketcher.Constraint("DistanceY", 16, 1, 16, 2, Q("0.433508 mm")),
    Sketcher.Constraint("DistanceX", 10, 1, 10, 2, Q("0.083665 mm")),
])
revolution5 = doc.addObject("PartDesign::Revolution", "Revolution004")
body5.addObject(revolution5)
revolution5.Profile = sketch5
revolution5.ReferenceAxis = (sketch5, ["V_Axis"])
revolution5.Angle = 360
body6 = doc.addObject("PartDesign::Body", "Body005")

sketch6 = doc.addObject("Sketcher::SketchObject", "Sketch005")
body6.addObject(sketch6)
sketch6.AttachmentSupport = (doc.getObject("XZ_Plane005"), [""])
sketch6.MapMode = "FlatFace"
sketch6.addGeometry([
    Part.LineSegment(App.Vector(2.25, 0, 0), App.Vector(2.57, 0, 0)),
    Part.LineSegment(App.Vector(2.57, 0, 0), App.Vector(3, 0.75, 0)),
    Part.LineSegment(App.Vector(3, 0.75, 0), App.Vector(3, 1.75, 0)),
    Part.LineSegment(App.Vector(3, 1.75, 0), App.Vector(3.35, 2.69, 0)),
    Part.LineSegment(App.Vector(3.35, 2.69, 0), App.Vector(3, 2.69, 0)),
    Part.LineSegment(App.Vector(3, 2.69, 0), App.Vector(3, 3.69, 0)),
    Part.LineSegment(App.Vector(3, 3.69, 0), App.Vector(3.35, 4.62, 0)),
    Part.LineSegment(App.Vector(3.35, 4.62, 0), App.Vector(3, 4.62, 0)),
    Part.LineSegment(App.Vector(3, 4.62, 0), App.Vector(3, 5.62, 0)),
    Part.LineSegment(App.Vector(3, 5.62, 0), App.Vector(4.12, 5.62, 0)),
    Part.LineSegment(App.Vector(4.12, 5.62, 0), App.Vector(4.12, 6.62, 0)),
    Part.LineSegment(App.Vector(4.12, 6.62, 0), App.Vector(3, 6.62, 0)),
    Part.LineSegment(App.Vector(3, 6.62, 0), App.Vector(3, 7.62, 0)),
    Part.LineSegment(App.Vector(3, 7.62, 0), App.Vector(4.12, 7.62, 0)),
    Part.LineSegment(App.Vector(4.12, 7.62, 0), App.Vector(4.12, 8.62, 0)),
    Part.LineSegment(App.Vector(4.12, 8.62, 0), App.Vector(2, 8.62, 0)),
    Part.LineSegment(App.Vector(2, 8.62, 0), App.Vector(2, 9.62, 0)),
    Part.LineSegment(App.Vector(2, 9.62, 0), App.Vector(2.35, 9.62, 0)),
    Part.LineSegment(App.Vector(2.35, 9.62, 0), App.Vector(2, 10.56, 0)),
    Part.LineSegment(App.Vector(2, 10.56, 0), App.Vector(2, 11.56, 0)),
    Part.LineSegment(App.Vector(2, 11.56, 0), App.Vector(2.35, 11.56, 0)),
    Part.LineSegment(App.Vector(2.35, 11.56, 0), App.Vector(2, 12.5, 0)),
    Part.LineSegment(App.Vector(2, 12.5, 0), App.Vector(2, 13.5, 0)),
    Part.LineSegment(App.Vector(2, 13.5, 0), App.Vector(1.62, 14.15, 0)),
    Part.LineSegment(App.Vector(1.62, 14.15, 0), App.Vector(1.25, 14.15, 0)),
    Part.LineSegment(App.Vector(1.25, 14.15, 0), App.Vector(1.25, 6.62, 0)),
    Part.LineSegment(App.Vector(1.25, 6.62, 0), App.Vector(2.25, 5.62, 0)),
    Part.LineSegment(App.Vector(2.25, 5.62, 0), App.Vector(2.25, 0, 0)),
], False)
sketch6.addConstraint([
    Sketcher.Constraint("Coincident", 0, 2, 1, 1),
    Sketcher.Constraint("Coincident", 1, 2, 2, 1),
    Sketcher.Constraint("Coincident", 2, 2, 3, 1),
    Sketcher.Constraint("Coincident", 3, 2, 4, 1),
    Sketcher.Constraint("Coincident", 4, 2, 5, 1),
    Sketcher.Constraint("Coincident", 5, 2, 6, 1),
    Sketcher.Constraint("Coincident", 6, 2, 7, 1),
    Sketcher.Constraint("Coincident", 7, 2, 8, 1),
    Sketcher.Constraint("Coincident", 8, 2, 9, 1),
    Sketcher.Constraint("Coincident", 9, 2, 10, 1),
    Sketcher.Constraint("Coincident", 10, 2, 11, 1),
    Sketcher.Constraint("Coincident", 11, 2, 12, 1),
    Sketcher.Constraint("Coincident", 12, 2, 13, 1),
    Sketcher.Constraint("Coincident", 13, 2, 14, 1),
    Sketcher.Constraint("Coincident", 14, 2, 15, 1),
    Sketcher.Constraint("Coincident", 15, 2, 16, 1),
    Sketcher.Constraint("Coincident", 16, 2, 17, 1),
    Sketcher.Constraint("Coincident", 17, 2, 18, 1),
    Sketcher.Constraint("Coincident", 18, 2, 19, 1),
    Sketcher.Constraint("Coincident", 19, 2, 20, 1),
    Sketcher.Constraint("Coincident", 20, 2, 21, 1),
    Sketcher.Constraint("Coincident", 21, 2, 22, 1),
    Sketcher.Constraint("Coincident", 22, 2, 23, 1),
    Sketcher.Constraint("Coincident", 23, 2, 24, 1),
    Sketcher.Constraint("Coincident", 24, 2, 25, 1),
    Sketcher.Constraint("Coincident", 25, 2, 26, 1),
    Sketcher.Constraint("Coincident", 26, 2, 27, 1),
    Sketcher.Constraint("Coincident", 27, 2, 0, 1),
    Sketcher.Constraint("Horizontal", 0),
    Sketcher.Constraint("Vertical", 2),
    Sketcher.Constraint("Horizontal", 4),
    Sketcher.Constraint("Vertical", 5),
    Sketcher.Constraint("Horizontal", 7),
    Sketcher.Constraint("Vertical", 8),
    Sketcher.Constraint("Horizontal", 9),
    Sketcher.Constraint("Vertical", 10),
    Sketcher.Constraint("Horizontal", 11),
    Sketcher.Constraint("Vertical", 12),
    Sketcher.Constraint("Horizontal", 13),
    Sketcher.Constraint("Vertical", 14),
    Sketcher.Constraint("Horizontal", 15),
    Sketcher.Constraint("Vertical", 16),
    Sketcher.Constraint("Horizontal", 17),
    Sketcher.Constraint("Vertical", 19),
    Sketcher.Constraint("Horizontal", 20),
    Sketcher.Constraint("Vertical", 22),
    Sketcher.Constraint("Horizontal", 24),
    Sketcher.Constraint("Vertical", 25),
    Sketcher.Constraint("Vertical", 27),
    Sketcher.Constraint("PointOnObject", 0, 2, -1),
    Sketcher.Constraint("Parallel", 3, 6),
    Sketcher.Constraint("Parallel", 18, 21),
    Sketcher.Constraint("Horizontal", 11, 2, 25, 2),
    Sketcher.Constraint("Horizontal", 9, 2, 26, 2),
    Sketcher.Constraint("Vertical", 2, 2, 4, 2),
    Sketcher.Constraint("Vertical", 3, 2, 6, 2),
    Sketcher.Constraint("Vertical", 5, 2, 7, 2),
    Sketcher.Constraint("Vertical", 8, 2, 11, 2),
    Sketcher.Constraint("Vertical", 10, 2, 13, 2),
    Sketcher.Constraint("Vertical", 16, 2, 18, 2),
    Sketcher.Constraint("Vertical", 17, 2, 20, 2),
    Sketcher.Constraint("Vertical", 19, 2, 21, 2),
    Sketcher.Constraint("Equal", 7, 17),
    Sketcher.Constraint("Equal", 2, 5),
    Sketcher.Constraint("Equal", 5, 8),
    Sketcher.Constraint("Equal", 8, 10),
    Sketcher.Constraint("Equal", 10, 12),
    Sketcher.Constraint("Equal", 12, 14),
    Sketcher.Constraint("Equal", 14, 16),
    Sketcher.Constraint("Equal", 16, 19),
    Sketcher.Constraint("Equal", 19, 22),
    Sketcher.Constraint("Equal", 6, 18),
    Sketcher.Constraint("DistanceY", 2, 1, 2, 2, Q("1 mm")),
    Sketcher.Constraint("Angle", 1, Q("59.999983 deg")),
    Sketcher.Constraint("Angle", 23, Q("120.000002 deg")),
    Sketcher.Constraint("Angle", 26, Q("-45 deg")),
    Sketcher.Constraint("Distance", 3, Q("1 mm")),
    Sketcher.Constraint("DistanceX", -1, 1, 1, 2, Q("3 mm")),
    Sketcher.Constraint("DistanceX", -1, 1, 15, 2, Q("2 mm")),
    Sketcher.Constraint("DistanceX", 4, 2, 4, 1, Q("0.35 mm")),
    Sketcher.Constraint("DistanceX", 24, 2, 20, 2, Q("1.1 mm")),
    Sketcher.Constraint("Distance", 23, Q("0.75 mm")),
    Sketcher.Constraint("DistanceX", 9, 1, 9, 2, Q("1.125 mm")),
    Sketcher.Constraint("DistanceY", -1, 1, 1, 2, Q("0.75 mm")),
])
revolution6 = doc.addObject("PartDesign::Revolution", "Revolution005")
body6.addObject(revolution6)
revolution6.Profile = sketch6
revolution6.ReferenceAxis = (sketch6, ["V_Axis"])
revolution6.Angle = 360

doc.recompute()
